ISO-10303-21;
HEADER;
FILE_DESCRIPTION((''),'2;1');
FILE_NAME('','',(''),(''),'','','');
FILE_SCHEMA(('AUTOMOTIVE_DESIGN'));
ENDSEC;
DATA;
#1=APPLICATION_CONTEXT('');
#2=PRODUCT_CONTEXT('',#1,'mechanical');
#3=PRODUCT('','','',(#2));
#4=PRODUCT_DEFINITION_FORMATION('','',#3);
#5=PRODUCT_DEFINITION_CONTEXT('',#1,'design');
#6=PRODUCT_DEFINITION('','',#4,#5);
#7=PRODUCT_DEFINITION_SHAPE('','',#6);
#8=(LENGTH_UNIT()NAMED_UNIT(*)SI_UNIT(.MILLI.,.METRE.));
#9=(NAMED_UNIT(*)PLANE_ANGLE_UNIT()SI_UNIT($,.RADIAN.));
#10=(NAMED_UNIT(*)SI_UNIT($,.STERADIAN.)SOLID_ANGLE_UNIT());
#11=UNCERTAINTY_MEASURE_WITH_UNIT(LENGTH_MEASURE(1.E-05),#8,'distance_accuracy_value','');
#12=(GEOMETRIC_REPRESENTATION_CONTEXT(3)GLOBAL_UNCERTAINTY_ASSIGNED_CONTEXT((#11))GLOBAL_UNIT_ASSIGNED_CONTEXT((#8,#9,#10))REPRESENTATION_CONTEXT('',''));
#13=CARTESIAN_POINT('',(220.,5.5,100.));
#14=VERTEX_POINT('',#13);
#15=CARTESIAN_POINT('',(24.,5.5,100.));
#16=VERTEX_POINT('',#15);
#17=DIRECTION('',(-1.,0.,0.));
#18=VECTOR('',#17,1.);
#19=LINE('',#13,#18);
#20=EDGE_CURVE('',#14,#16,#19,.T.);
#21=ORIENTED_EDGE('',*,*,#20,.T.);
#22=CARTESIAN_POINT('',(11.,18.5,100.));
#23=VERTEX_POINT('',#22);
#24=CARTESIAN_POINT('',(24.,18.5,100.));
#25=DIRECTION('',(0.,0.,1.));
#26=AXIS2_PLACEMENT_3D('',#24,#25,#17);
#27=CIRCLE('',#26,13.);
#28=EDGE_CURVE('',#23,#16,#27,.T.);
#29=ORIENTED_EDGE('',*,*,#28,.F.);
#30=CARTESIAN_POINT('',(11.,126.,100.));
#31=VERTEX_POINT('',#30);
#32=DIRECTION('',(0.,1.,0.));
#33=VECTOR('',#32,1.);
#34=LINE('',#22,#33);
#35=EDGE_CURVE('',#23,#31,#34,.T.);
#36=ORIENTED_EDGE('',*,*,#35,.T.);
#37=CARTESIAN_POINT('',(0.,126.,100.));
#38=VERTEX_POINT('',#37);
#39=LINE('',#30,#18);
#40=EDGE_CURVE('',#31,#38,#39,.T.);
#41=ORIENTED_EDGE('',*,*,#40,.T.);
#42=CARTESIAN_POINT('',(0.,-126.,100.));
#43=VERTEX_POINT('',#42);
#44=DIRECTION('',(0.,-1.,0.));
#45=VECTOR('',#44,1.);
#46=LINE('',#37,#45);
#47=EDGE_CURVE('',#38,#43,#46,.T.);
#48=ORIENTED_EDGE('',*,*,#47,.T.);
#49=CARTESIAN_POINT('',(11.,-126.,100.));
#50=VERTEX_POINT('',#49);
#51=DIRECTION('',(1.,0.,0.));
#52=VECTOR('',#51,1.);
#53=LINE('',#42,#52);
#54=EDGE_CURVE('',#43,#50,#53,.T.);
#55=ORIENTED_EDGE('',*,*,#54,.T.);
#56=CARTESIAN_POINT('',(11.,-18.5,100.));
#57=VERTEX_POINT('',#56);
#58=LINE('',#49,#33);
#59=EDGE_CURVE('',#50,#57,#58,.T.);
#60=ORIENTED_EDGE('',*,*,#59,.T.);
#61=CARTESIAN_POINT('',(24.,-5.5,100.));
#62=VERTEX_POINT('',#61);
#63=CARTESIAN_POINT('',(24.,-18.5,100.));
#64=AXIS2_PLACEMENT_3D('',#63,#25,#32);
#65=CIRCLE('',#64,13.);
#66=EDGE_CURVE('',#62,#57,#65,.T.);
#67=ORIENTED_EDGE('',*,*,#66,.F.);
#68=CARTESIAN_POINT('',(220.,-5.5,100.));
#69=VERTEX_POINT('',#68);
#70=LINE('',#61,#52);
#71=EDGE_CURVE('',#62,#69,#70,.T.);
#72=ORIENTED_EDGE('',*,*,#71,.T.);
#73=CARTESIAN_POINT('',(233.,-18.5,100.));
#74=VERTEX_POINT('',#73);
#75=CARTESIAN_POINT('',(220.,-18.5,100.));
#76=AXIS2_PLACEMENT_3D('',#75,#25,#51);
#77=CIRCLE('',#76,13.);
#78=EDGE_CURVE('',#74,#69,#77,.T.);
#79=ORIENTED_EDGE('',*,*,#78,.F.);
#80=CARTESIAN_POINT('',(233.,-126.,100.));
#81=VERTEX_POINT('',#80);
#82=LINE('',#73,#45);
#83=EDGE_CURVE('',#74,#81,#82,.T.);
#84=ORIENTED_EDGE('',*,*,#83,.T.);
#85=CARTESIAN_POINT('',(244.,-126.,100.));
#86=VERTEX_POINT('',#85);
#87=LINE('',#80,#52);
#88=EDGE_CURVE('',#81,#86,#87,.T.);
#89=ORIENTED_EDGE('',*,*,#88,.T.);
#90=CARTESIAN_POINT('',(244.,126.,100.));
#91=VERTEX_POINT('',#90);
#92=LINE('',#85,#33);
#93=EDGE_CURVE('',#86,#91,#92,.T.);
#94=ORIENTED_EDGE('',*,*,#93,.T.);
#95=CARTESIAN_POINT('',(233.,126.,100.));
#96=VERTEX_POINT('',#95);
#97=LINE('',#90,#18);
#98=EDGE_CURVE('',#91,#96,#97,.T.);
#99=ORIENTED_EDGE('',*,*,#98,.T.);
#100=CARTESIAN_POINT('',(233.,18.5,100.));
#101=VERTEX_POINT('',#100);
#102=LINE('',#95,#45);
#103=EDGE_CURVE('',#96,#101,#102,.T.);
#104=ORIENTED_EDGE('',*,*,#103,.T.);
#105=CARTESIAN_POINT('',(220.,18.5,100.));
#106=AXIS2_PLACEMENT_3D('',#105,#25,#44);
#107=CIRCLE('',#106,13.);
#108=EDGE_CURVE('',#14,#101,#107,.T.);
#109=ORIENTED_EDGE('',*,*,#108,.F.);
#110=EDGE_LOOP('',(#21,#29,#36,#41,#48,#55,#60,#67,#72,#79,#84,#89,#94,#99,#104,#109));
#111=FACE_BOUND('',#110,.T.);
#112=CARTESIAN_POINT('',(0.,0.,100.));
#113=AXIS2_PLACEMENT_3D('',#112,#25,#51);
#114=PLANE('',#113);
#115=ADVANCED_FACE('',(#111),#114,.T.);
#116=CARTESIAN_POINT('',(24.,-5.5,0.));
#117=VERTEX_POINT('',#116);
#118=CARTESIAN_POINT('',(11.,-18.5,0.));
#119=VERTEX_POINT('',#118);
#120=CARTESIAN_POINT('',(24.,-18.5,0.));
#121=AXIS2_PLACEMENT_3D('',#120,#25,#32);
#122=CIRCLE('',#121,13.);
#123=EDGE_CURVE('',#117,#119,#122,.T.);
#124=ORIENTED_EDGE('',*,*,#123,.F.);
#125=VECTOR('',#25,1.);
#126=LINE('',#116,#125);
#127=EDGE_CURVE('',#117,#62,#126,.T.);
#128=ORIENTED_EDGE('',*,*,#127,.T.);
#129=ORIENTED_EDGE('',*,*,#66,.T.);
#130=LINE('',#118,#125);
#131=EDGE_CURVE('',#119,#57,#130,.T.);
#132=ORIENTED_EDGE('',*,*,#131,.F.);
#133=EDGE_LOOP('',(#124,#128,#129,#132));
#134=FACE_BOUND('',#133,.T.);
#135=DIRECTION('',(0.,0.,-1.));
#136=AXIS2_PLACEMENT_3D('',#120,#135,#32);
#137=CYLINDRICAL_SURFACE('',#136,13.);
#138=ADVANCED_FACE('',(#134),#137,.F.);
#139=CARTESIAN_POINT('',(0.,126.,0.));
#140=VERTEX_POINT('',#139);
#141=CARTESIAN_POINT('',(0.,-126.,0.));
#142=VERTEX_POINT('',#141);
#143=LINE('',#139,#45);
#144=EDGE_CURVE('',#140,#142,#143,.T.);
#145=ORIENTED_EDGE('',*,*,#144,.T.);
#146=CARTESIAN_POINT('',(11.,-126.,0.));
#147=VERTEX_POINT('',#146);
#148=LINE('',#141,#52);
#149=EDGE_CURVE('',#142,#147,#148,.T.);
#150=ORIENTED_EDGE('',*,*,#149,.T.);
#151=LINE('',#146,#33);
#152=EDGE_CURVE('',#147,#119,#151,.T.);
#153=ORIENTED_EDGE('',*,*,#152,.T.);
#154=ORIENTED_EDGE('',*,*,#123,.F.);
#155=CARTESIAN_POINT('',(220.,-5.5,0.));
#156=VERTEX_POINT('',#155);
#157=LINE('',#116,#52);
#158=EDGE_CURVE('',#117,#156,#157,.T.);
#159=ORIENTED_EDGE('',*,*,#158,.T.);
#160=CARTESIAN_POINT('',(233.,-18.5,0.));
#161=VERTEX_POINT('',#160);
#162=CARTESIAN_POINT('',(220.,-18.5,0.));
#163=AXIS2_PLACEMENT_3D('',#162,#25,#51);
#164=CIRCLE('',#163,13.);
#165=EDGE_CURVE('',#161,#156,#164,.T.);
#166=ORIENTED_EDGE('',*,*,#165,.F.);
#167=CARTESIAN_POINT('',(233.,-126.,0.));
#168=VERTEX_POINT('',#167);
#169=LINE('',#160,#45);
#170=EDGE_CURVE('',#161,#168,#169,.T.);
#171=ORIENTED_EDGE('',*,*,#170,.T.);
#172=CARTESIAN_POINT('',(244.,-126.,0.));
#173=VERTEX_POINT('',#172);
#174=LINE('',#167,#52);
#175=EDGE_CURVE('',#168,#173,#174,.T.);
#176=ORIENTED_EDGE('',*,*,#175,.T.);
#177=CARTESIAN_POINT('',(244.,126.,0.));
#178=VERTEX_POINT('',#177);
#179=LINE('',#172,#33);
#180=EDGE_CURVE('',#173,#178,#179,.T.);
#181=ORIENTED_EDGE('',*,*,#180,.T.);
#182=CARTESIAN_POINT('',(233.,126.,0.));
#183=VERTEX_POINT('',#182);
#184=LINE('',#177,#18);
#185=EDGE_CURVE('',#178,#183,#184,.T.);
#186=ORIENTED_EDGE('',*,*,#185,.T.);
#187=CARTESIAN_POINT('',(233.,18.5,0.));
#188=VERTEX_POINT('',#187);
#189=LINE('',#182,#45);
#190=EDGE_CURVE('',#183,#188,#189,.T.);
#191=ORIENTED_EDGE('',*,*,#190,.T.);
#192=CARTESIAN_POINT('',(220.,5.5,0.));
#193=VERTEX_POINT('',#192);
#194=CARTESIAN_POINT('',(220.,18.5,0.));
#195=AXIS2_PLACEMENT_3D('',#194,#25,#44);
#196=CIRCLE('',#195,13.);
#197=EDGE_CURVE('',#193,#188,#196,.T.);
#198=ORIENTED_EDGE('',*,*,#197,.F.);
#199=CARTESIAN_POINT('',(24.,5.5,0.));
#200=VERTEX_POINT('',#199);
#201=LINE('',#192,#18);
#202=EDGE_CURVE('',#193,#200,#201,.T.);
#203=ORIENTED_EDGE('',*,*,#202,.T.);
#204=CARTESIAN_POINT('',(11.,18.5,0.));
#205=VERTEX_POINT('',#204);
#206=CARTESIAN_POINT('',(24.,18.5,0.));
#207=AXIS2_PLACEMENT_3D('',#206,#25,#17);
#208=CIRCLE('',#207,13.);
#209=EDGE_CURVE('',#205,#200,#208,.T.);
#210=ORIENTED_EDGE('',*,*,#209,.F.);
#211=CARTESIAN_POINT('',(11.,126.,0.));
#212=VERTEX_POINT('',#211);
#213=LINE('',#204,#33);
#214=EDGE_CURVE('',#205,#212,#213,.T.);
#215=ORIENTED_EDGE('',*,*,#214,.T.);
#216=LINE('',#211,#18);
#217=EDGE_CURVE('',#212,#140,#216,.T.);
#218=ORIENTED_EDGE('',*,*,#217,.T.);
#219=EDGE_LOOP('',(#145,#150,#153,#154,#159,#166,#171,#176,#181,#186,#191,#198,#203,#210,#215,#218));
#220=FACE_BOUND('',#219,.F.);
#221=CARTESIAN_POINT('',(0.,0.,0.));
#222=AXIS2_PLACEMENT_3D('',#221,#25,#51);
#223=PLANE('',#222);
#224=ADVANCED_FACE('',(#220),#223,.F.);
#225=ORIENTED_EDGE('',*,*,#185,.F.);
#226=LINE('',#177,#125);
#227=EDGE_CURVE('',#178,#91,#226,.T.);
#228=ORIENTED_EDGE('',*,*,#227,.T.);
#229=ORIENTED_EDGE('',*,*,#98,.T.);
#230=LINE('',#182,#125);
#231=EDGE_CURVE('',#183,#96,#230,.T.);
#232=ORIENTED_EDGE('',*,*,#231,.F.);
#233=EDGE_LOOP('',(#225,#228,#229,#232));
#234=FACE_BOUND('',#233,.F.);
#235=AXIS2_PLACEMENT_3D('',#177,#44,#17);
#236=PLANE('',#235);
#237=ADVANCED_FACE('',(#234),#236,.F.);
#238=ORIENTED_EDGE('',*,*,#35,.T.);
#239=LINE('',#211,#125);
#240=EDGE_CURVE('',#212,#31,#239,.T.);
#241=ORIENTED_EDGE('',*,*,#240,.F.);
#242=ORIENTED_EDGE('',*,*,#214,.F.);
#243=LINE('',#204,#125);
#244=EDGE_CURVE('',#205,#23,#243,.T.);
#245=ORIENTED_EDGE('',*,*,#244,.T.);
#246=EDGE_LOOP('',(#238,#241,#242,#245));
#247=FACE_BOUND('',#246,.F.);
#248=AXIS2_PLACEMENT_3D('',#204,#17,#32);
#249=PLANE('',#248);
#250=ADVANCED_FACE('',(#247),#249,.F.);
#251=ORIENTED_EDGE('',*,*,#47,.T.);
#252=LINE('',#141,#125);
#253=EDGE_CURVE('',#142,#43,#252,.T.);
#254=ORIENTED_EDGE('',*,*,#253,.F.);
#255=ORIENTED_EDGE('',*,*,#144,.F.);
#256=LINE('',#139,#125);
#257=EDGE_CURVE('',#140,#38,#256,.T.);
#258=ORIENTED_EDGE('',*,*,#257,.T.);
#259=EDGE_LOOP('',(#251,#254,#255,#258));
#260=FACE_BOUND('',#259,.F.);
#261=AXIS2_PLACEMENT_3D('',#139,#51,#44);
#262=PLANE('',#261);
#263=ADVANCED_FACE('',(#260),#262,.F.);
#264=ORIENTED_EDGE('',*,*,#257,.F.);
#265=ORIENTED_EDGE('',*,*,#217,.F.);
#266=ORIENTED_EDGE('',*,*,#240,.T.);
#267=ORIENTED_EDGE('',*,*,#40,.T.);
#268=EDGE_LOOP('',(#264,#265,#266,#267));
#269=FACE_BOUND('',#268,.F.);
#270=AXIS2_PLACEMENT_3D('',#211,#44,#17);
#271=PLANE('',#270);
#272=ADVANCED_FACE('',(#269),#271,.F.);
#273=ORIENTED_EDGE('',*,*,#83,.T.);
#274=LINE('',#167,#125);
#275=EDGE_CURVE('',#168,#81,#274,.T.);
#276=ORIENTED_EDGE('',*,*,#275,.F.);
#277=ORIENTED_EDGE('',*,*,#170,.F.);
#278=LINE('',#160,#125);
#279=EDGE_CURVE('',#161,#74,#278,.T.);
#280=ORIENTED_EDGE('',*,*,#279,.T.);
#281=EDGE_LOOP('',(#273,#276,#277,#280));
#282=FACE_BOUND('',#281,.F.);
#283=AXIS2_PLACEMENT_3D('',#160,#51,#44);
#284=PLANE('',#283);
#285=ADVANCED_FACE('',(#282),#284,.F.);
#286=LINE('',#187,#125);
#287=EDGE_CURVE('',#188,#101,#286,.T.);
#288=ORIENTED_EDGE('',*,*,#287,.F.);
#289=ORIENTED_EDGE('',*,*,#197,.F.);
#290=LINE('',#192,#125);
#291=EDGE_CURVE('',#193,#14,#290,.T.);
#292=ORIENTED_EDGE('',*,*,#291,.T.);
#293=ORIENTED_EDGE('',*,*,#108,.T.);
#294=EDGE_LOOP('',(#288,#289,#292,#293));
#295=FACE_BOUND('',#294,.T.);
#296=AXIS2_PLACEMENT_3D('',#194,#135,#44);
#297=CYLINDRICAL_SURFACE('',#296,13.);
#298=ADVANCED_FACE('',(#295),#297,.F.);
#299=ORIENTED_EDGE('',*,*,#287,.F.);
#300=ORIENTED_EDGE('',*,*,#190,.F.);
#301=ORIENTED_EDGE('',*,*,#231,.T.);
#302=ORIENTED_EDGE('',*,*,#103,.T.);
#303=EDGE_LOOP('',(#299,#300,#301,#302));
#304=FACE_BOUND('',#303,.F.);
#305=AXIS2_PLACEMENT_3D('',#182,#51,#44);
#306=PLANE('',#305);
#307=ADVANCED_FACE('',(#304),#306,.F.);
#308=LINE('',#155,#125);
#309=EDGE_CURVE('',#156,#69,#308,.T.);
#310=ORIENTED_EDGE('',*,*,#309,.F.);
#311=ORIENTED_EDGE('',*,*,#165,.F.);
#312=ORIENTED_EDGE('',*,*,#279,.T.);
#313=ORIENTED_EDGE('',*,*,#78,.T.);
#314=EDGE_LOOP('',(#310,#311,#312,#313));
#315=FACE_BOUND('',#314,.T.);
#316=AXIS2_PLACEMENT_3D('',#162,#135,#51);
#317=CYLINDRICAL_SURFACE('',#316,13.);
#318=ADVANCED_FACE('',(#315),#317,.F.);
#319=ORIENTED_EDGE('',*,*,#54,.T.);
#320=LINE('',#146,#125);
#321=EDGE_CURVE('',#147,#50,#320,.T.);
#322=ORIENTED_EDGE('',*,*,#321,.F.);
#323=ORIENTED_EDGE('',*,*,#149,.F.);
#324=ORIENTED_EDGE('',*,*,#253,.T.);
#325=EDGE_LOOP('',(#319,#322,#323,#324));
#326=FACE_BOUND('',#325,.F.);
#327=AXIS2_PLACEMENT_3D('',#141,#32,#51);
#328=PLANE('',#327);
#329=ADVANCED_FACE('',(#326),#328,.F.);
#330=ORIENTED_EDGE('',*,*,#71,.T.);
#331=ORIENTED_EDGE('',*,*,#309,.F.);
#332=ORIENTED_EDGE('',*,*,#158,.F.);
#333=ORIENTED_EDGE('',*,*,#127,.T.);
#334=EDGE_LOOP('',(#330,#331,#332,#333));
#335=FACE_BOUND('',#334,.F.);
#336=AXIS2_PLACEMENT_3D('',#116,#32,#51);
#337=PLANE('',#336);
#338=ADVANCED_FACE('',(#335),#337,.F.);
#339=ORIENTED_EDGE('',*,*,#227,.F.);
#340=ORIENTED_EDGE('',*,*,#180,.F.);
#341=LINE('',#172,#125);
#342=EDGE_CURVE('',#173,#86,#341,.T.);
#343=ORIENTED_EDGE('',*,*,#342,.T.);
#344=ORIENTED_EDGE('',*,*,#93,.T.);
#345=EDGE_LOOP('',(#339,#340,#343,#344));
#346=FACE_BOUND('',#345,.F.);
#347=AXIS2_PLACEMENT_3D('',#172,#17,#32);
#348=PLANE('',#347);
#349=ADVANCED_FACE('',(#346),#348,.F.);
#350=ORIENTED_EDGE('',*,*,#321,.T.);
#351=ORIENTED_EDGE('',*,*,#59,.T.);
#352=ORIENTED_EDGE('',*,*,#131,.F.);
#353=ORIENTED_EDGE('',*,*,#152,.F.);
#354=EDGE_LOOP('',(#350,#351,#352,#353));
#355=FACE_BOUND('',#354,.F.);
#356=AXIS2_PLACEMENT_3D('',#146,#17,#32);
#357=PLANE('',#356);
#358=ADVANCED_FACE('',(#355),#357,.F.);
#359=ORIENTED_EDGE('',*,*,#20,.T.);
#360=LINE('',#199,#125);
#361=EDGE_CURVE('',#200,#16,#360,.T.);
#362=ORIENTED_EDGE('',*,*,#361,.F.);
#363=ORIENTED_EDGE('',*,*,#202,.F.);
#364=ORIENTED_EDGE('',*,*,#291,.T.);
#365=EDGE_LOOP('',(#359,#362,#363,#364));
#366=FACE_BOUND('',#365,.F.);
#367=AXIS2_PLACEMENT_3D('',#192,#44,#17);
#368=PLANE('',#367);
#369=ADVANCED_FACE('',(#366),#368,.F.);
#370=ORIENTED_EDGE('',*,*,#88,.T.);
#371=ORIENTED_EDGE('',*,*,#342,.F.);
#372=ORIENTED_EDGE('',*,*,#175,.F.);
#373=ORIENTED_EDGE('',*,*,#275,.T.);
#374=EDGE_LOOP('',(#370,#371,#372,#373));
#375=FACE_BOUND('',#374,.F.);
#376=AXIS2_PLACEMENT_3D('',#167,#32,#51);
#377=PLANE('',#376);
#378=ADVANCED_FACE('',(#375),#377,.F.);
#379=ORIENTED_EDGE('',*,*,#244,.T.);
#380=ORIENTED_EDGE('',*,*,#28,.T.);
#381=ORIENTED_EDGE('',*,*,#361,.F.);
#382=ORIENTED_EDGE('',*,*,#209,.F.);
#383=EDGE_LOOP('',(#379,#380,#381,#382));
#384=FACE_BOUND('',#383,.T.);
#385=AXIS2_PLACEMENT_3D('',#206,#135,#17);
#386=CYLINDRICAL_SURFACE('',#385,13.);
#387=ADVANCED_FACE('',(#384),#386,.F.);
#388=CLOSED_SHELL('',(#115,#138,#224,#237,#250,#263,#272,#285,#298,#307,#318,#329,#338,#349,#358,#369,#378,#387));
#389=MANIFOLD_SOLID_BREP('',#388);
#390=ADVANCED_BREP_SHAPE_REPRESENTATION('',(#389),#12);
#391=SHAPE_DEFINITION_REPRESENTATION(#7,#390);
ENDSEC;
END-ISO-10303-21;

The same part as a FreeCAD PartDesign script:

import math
import FreeCAD as App
import Part
import Sketcher
from FreeCAD import Vector
Q = App.Units.Quantity

doc = App.newDocument("Part")
body = doc.addObject("PartDesign::Body", "Body")

sketch1 = doc.addObject("Sketcher::SketchObject", "Sketch")
body.addObject(sketch1)
sketch1.AttachmentSupport = (doc.XY_Plane, [""])
sketch1.MapMode = "FlatFace"
sketch1.addGeometry([
    Part.LineSegment(Vector(11, 126, 0), Vector(0, 126, 0)),
    Part.LineSegment(Vector(0, 126, 0), Vector(0, -126, 0)),
    Part.LineSegment(Vector(0, -126, 0), Vector(11, -126, 0)),
    Part.LineSegment(Vector(11, -126, 0), Vector(11, -18.5, 0)),
    Part.ArcOfCircle(Part.Circle(Vector(24, -18.5, 0), Vector(0, 0, 1), 13), math.radians(90), math.radians(180)),
    Part.LineSegment(Vector(24, -5.5, 0), Vector(220, -5.5, 0)),
    Part.ArcOfCircle(Part.Circle(Vector(220, -18.5, 0), Vector(0, 0, 1), 13), math.radians(0), math.radians(90)),
    Part.LineSegment(Vector(233, -18.5, 0), Vector(233, -126, 0)),
    Part.LineSegment(Vector(233, -126, 0), Vector(244, -126, 0)),
    Part.LineSegment(Vector(244, -126, 0), Vector(244, 126, 0)),
    Part.LineSegment(Vector(244, 126, 0), Vector(233, 126, 0)),
    Part.LineSegment(Vector(233, 126, 0), Vector(233, 18.5, 0)),
    Part.ArcOfCircle(Part.Circle(Vector(220, 18.5, 0), Vector(0, 0, 1), 13), math.radians(-90), math.radians(0)),
    Part.LineSegment(Vector(220, 5.5, 0), Vector(24, 5.5, 0)),
    Part.ArcOfCircle(Part.Circle(Vector(24, 18.5, 0), Vector(0, 0, 1), 13), math.radians(180), math.radians(270)),
    Part.LineSegment(Vector(11, 18.5, 0), Vector(11, 126, 0)),
], False)
sketch1.addConstraint([
    Sketcher.Constraint("Coincident", 0, 2, 1, 1),
    Sketcher.Constraint("Coincident", 1, 2, 2, 1),
    Sketcher.Constraint("Coincident", 2, 2, 3, 1),
    Sketcher.Constraint("Tangent", 3, 2, 4, 2),
    Sketcher.Constraint("Tangent", 4, 1, 5, 1),
    Sketcher.Constraint("Tangent", 5, 2, 6, 2),
    Sketcher.Constraint("Tangent", 6, 1, 7, 1),
    Sketcher.Constraint("Coincident", 7, 2, 8, 1),
    Sketcher.Constraint("Coincident", 8, 2, 9, 1),
    Sketcher.Constraint("Coincident", 9, 2, 10, 1),
    Sketcher.Constraint("Coincident", 10, 2, 11, 1),
    Sketcher.Constraint("Tangent", 11, 2, 12, 2),
    Sketcher.Constraint("Tangent", 12, 1, 13, 1),
    Sketcher.Constraint("Tangent", 13, 2, 14, 2),
    Sketcher.Constraint("Tangent", 14, 1, 15, 1),
    Sketcher.Constraint("Coincident", 15, 2, 0, 1),
    Sketcher.Constraint("Horizontal", 0),
    Sketcher.Constraint("Vertical", 1),
    Sketcher.Constraint("Horizontal", 2),
    Sketcher.Constraint("Vertical", 3),
    Sketcher.Constraint("Horizontal", 5),
    Sketcher.Constraint("Vertical", 7),
    Sketcher.Constraint("Horizontal", 8),
    Sketcher.Constraint("Vertical", 9),
    Sketcher.Constraint("Horizontal", 10),
    Sketcher.Constraint("Vertical", 11),
    Sketcher.Constraint("Horizontal", 13),
    Sketcher.Constraint("Vertical", 15),
    Sketcher.Constraint("Equal", 4, 6),
    Sketcher.Constraint("Equal", 6, 12),
    Sketcher.Constraint("Equal", 12, 14),
    Sketcher.Constraint("Symmetric", 0, 2, 1, 2, -1, 1),
    Sketcher.Constraint("Symmetric", 6, 3, 12, 3, -1),
    Sketcher.Constraint("Horizontal", 2, 2, 7, 2),
    Sketcher.Constraint("Horizontal", 0, 2, 9, 2),
    Sketcher.Constraint("Vertical", 4, 3, 14, 3),
    Sketcher.Constraint("Equal", 2, 8),
    Sketcher.Constraint("Radius", 4, Q("13 mm")),
    Sketcher.Constraint("DistanceX", 0, 2, 0, 1, Q("11 mm")),
    Sketcher.Constraint("DistanceX", 5, 1, 5, 2, Q("196 mm")),
    Sketcher.Constraint("DistanceY", 1, 2, 1, 1, Q("252 mm")),
    Sketcher.Constraint("DistanceY", 3, 1, 3, 2, Q("107.5 mm")),
])
pad1 = doc.addObject("PartDesign::Pad", "Pad")
body.addObject(pad1)
pad1.Profile = sketch1
pad1.Length = 100

doc.recompute()
